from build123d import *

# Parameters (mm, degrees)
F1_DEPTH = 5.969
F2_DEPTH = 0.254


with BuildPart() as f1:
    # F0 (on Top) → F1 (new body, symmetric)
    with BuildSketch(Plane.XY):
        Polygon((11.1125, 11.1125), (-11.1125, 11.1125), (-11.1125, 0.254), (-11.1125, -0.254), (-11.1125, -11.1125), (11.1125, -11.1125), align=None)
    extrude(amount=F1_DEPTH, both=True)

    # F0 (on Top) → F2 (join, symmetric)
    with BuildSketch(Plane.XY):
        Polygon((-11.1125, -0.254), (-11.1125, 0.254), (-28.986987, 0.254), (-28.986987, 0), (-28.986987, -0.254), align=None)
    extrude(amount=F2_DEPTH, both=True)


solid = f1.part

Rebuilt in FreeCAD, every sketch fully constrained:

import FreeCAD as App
import Part
import Sketcher
from FreeCAD import Vector
Q = App.Units.Quantity

doc = App.newDocument("Part")
body = doc.addObject("PartDesign::Body", "Body")

# Sketch on XY plane
sketch1 = doc.addObject("Sketcher::SketchObject", "Sketch")
body.addObject(sketch1)
sketch1.AttachmentSupport = (doc.XY_Plane, [""])
sketch1.MapMode = "FlatFace"
sketch1.addGeometry([
    Part.LineSegment(Vector(11.1125, 11.1125, 0), Vector(-11.1125, 11.1125, 0)),
    Part.LineSegment(Vector(-11.1125, 11.1125, 0), Vector(-11.1125, -11.1125, 0)),
    Part.LineSegment(Vector(-11.1125, -11.1125, 0), Vector(11.1125, -11.1125, 0)),
    Part.LineSegment(Vector(11.1125, -11.1125, 0), Vector(11.1125, 11.1125, 0)),
], False)
sketch1.addConstraint([
    Sketcher.Constraint("Coincident", 0, 2, 1, 1),
    Sketcher.Constraint("Coincident", 1, 2, 2, 1),
    Sketcher.Constraint("Coincident", 2, 2, 3, 1),
    Sketcher.Constraint("Coincident", 3, 2, 0, 1),
    Sketcher.Constraint("Horizontal", 0),
    Sketcher.Constraint("Vertical", 1),
    Sketcher.Constraint("Horizontal", 2),
    Sketcher.Constraint("Vertical", 3),
    Sketcher.Constraint("Symmetric", 0, 2, 2, 2, -1, 1),
    Sketcher.Constraint("Equal", 2, 1),
    Sketcher.Constraint("DistanceX", 0, 2, 0, 1, Q("0.875 in")),
])
pad1 = doc.addObject("PartDesign::Pad", "Pad")
body.addObject(pad1)
pad1.Profile = sketch1
pad1.Length = Q("0.47 in")
pad1.Midplane = True

# Sketch on XY plane
sketch2 = doc.addObject("Sketcher::SketchObject", "Sketch001")
body.addObject(sketch2)
sketch2.AttachmentSupport = (doc.XY_Plane, [""])
sketch2.MapMode = "FlatFace"
sketch2.addGeometry([
    Part.LineSegment(Vector(-11.1125, -0.254, 0), Vector(-11.1125, 0.254, 0)),
    Part.LineSegment(Vector(-11.1125, 0.254, 0), Vector(-28.986987, 0.254, 0)),
    Part.LineSegment(Vector(-28.986987, 0.254, 0), Vector(-28.986987, -0.254, 0)),
    Part.LineSegment(Vector(-28.986987, -0.254, 0), Vector(-11.1125, -0.254, 0)),
], False)
sketch2.addConstraint([
    Sketcher.Constraint("Coincident", 0, 2, 1, 1),
    Sketcher.Constraint("Coincident", 1, 2, 2, 1),
    Sketcher.Constraint("Coincident", 2, 2, 3, 1),
    Sketcher.Constraint("Coincident", 3, 2, 0, 1),
    Sketcher.Constraint("Vertical", 0),
    Sketcher.Constraint("Horizontal", 1),
    Sketcher.Constraint("Vertical", 2),
    Sketcher.Constraint("Horizontal", 3),
    Sketcher.Constraint("DistanceY", 0, 1, 0, 2, Q("0.02 in")),
    Sketcher.Constraint("DistanceY", -1, 1, 0, 2, Q("0.01 in")),
    Sketcher.Constraint("DistanceX", 0, 2, -1, 1, Q("0.4375 in")),
    Sketcher.Constraint("DistanceX", 1, 2, 1, 1, 17.874487),
])
pad2 = doc.addObject("PartDesign::Pad", "Pad001")
body.addObject(pad2)
pad2.Profile = sketch2
pad2.Length = Q("0.02 in")
pad2.Midplane = True

doc.recompute()
